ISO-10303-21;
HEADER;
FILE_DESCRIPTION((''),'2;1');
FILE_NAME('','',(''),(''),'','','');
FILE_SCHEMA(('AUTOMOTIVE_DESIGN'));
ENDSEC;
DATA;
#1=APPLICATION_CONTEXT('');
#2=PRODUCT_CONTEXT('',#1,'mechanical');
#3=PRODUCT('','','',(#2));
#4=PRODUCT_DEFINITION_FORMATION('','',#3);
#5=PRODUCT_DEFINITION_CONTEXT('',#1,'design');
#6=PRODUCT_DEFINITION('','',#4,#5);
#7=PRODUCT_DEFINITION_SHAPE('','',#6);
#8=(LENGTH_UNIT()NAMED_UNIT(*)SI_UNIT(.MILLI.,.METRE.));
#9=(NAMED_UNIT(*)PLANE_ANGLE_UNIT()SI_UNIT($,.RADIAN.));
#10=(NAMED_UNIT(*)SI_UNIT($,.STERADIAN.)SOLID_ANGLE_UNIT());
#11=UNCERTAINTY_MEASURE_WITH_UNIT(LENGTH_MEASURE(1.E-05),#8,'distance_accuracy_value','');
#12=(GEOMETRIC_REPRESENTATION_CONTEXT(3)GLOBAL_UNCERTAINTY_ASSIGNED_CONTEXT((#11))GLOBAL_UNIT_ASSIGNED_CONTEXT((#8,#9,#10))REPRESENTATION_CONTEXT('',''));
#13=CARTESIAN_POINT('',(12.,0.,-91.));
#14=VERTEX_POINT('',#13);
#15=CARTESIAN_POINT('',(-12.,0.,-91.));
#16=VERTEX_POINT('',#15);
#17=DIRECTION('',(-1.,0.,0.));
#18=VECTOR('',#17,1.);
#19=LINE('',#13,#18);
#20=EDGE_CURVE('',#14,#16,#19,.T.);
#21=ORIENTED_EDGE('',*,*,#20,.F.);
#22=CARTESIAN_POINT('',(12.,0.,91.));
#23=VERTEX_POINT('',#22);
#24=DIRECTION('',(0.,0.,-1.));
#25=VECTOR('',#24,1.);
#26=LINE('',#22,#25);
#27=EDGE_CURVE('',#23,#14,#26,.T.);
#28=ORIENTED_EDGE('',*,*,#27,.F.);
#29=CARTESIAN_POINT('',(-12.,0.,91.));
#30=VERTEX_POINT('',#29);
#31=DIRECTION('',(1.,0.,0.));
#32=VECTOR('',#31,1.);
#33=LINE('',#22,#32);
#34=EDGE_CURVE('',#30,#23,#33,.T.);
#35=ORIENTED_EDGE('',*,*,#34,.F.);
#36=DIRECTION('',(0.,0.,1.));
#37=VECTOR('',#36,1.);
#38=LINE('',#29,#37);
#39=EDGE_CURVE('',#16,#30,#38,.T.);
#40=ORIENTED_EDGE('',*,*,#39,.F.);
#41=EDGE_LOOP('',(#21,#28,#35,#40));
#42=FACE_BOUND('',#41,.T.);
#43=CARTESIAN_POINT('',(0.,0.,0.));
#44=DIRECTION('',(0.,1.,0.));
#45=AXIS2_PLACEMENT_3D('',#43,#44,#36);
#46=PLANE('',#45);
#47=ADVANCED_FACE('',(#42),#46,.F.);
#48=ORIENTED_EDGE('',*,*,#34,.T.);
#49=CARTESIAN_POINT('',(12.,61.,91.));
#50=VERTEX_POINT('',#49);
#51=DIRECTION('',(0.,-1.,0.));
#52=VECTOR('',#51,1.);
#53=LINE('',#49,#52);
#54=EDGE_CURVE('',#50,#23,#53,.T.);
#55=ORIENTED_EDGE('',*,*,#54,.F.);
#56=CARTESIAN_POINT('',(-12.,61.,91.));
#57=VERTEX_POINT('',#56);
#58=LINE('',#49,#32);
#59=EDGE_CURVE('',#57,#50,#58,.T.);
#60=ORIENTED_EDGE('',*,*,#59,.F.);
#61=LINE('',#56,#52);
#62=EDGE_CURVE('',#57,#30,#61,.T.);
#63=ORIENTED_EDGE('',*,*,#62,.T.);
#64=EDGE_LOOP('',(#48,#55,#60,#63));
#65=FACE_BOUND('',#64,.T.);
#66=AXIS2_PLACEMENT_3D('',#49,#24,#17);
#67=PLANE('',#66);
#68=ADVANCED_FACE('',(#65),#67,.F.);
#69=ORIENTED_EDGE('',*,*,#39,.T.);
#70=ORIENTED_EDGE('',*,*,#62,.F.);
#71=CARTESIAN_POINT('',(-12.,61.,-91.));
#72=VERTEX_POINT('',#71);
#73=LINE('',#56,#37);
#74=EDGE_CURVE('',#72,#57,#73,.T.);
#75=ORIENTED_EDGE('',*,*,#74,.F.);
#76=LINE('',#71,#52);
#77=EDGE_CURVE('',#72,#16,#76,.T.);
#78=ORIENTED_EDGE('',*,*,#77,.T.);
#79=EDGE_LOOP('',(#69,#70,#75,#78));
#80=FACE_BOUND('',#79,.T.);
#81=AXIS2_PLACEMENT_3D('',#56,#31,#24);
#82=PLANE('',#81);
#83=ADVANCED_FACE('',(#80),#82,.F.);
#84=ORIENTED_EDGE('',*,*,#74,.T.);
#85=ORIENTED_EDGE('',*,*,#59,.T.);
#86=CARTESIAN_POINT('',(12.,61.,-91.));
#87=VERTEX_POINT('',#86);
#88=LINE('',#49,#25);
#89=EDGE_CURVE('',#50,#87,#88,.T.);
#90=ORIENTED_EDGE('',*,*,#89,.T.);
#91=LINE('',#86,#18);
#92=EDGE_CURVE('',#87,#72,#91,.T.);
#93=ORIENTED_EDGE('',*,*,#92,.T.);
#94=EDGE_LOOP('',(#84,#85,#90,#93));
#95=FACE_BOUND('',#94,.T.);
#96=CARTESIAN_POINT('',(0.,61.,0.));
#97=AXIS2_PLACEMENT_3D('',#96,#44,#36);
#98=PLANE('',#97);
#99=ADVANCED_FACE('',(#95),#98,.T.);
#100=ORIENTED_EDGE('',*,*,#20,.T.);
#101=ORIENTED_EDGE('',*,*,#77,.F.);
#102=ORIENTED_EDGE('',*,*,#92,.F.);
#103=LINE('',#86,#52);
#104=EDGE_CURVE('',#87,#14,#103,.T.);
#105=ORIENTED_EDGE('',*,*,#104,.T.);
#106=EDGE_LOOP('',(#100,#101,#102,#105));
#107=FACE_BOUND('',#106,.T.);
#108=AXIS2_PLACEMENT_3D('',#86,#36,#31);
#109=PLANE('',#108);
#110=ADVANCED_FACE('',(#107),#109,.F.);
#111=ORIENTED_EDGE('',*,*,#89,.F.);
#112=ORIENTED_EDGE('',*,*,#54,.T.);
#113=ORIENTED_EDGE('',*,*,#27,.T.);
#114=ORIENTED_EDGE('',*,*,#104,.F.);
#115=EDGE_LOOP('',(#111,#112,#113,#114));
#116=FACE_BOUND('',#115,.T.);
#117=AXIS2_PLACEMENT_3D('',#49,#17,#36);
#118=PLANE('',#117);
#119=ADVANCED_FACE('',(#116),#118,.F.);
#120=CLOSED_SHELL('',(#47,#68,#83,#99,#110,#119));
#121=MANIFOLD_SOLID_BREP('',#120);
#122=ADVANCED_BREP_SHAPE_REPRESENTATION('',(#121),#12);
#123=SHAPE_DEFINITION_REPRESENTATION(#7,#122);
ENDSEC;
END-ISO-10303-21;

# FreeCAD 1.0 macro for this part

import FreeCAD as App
import Part
import Sketcher
Q = App.Units.Quantity

doc = App.newDocument("Part")
body = doc.addObject("PartDesign::Body", "Body")

sketch1 = doc.addObject("Sketcher::SketchObject", "Sketch")
body.addObject(sketch1)
sketch1.AttachmentSupport = (doc.XZ_Plane, [""])
sketch1.MapMode = "FlatFace"
sketch1.addGeometry([
    Part.LineSegment(App.Vector(-12, -91, 0), App.Vector(-12, 91, 0)),
    Part.LineSegment(App.Vector(-12, 91, 0), App.Vector(12, 91, 0)),
    Part.LineSegment(App.Vector(12, 91, 0), App.Vector(12, -91, 0)),
    Part.LineSegment(App.Vector(12, -91, 0), App.Vector(-12, -91, 0)),
], False)
sketch1.addConstraint([
    Sketcher.Constraint("Coincident", 0, 2, 1, 1),
    Sketcher.Constraint("Coincident", 1, 2, 2, 1),
    Sketcher.Constraint("Coincident", 2, 2, 3, 1),
    Sketcher.Constraint("Coincident", 3, 2, 0, 1),
    Sketcher.Constraint("Vertical", 0),
    Sketcher.Constraint("Horizontal", 1),
    Sketcher.Constraint("Vertical", 2),
    Sketcher.Constraint("Horizontal", 3),
    Sketcher.Constraint("Symmetric", 0, 2, 2, 2, -1, 1),
    Sketcher.Constraint("DistanceX", 1, 1, 1, 2, Q("24 mm")),
    Sketcher.Constraint("DistanceY", 0, 1, 0, 2, Q("182 mm")),
])
pad1 = doc.addObject("PartDesign::Pad", "Pad")
body.addObject(pad1)
pad1.Profile = sketch1
pad1.Length = 61
pad1.Reversed = True

doc.recompute()
